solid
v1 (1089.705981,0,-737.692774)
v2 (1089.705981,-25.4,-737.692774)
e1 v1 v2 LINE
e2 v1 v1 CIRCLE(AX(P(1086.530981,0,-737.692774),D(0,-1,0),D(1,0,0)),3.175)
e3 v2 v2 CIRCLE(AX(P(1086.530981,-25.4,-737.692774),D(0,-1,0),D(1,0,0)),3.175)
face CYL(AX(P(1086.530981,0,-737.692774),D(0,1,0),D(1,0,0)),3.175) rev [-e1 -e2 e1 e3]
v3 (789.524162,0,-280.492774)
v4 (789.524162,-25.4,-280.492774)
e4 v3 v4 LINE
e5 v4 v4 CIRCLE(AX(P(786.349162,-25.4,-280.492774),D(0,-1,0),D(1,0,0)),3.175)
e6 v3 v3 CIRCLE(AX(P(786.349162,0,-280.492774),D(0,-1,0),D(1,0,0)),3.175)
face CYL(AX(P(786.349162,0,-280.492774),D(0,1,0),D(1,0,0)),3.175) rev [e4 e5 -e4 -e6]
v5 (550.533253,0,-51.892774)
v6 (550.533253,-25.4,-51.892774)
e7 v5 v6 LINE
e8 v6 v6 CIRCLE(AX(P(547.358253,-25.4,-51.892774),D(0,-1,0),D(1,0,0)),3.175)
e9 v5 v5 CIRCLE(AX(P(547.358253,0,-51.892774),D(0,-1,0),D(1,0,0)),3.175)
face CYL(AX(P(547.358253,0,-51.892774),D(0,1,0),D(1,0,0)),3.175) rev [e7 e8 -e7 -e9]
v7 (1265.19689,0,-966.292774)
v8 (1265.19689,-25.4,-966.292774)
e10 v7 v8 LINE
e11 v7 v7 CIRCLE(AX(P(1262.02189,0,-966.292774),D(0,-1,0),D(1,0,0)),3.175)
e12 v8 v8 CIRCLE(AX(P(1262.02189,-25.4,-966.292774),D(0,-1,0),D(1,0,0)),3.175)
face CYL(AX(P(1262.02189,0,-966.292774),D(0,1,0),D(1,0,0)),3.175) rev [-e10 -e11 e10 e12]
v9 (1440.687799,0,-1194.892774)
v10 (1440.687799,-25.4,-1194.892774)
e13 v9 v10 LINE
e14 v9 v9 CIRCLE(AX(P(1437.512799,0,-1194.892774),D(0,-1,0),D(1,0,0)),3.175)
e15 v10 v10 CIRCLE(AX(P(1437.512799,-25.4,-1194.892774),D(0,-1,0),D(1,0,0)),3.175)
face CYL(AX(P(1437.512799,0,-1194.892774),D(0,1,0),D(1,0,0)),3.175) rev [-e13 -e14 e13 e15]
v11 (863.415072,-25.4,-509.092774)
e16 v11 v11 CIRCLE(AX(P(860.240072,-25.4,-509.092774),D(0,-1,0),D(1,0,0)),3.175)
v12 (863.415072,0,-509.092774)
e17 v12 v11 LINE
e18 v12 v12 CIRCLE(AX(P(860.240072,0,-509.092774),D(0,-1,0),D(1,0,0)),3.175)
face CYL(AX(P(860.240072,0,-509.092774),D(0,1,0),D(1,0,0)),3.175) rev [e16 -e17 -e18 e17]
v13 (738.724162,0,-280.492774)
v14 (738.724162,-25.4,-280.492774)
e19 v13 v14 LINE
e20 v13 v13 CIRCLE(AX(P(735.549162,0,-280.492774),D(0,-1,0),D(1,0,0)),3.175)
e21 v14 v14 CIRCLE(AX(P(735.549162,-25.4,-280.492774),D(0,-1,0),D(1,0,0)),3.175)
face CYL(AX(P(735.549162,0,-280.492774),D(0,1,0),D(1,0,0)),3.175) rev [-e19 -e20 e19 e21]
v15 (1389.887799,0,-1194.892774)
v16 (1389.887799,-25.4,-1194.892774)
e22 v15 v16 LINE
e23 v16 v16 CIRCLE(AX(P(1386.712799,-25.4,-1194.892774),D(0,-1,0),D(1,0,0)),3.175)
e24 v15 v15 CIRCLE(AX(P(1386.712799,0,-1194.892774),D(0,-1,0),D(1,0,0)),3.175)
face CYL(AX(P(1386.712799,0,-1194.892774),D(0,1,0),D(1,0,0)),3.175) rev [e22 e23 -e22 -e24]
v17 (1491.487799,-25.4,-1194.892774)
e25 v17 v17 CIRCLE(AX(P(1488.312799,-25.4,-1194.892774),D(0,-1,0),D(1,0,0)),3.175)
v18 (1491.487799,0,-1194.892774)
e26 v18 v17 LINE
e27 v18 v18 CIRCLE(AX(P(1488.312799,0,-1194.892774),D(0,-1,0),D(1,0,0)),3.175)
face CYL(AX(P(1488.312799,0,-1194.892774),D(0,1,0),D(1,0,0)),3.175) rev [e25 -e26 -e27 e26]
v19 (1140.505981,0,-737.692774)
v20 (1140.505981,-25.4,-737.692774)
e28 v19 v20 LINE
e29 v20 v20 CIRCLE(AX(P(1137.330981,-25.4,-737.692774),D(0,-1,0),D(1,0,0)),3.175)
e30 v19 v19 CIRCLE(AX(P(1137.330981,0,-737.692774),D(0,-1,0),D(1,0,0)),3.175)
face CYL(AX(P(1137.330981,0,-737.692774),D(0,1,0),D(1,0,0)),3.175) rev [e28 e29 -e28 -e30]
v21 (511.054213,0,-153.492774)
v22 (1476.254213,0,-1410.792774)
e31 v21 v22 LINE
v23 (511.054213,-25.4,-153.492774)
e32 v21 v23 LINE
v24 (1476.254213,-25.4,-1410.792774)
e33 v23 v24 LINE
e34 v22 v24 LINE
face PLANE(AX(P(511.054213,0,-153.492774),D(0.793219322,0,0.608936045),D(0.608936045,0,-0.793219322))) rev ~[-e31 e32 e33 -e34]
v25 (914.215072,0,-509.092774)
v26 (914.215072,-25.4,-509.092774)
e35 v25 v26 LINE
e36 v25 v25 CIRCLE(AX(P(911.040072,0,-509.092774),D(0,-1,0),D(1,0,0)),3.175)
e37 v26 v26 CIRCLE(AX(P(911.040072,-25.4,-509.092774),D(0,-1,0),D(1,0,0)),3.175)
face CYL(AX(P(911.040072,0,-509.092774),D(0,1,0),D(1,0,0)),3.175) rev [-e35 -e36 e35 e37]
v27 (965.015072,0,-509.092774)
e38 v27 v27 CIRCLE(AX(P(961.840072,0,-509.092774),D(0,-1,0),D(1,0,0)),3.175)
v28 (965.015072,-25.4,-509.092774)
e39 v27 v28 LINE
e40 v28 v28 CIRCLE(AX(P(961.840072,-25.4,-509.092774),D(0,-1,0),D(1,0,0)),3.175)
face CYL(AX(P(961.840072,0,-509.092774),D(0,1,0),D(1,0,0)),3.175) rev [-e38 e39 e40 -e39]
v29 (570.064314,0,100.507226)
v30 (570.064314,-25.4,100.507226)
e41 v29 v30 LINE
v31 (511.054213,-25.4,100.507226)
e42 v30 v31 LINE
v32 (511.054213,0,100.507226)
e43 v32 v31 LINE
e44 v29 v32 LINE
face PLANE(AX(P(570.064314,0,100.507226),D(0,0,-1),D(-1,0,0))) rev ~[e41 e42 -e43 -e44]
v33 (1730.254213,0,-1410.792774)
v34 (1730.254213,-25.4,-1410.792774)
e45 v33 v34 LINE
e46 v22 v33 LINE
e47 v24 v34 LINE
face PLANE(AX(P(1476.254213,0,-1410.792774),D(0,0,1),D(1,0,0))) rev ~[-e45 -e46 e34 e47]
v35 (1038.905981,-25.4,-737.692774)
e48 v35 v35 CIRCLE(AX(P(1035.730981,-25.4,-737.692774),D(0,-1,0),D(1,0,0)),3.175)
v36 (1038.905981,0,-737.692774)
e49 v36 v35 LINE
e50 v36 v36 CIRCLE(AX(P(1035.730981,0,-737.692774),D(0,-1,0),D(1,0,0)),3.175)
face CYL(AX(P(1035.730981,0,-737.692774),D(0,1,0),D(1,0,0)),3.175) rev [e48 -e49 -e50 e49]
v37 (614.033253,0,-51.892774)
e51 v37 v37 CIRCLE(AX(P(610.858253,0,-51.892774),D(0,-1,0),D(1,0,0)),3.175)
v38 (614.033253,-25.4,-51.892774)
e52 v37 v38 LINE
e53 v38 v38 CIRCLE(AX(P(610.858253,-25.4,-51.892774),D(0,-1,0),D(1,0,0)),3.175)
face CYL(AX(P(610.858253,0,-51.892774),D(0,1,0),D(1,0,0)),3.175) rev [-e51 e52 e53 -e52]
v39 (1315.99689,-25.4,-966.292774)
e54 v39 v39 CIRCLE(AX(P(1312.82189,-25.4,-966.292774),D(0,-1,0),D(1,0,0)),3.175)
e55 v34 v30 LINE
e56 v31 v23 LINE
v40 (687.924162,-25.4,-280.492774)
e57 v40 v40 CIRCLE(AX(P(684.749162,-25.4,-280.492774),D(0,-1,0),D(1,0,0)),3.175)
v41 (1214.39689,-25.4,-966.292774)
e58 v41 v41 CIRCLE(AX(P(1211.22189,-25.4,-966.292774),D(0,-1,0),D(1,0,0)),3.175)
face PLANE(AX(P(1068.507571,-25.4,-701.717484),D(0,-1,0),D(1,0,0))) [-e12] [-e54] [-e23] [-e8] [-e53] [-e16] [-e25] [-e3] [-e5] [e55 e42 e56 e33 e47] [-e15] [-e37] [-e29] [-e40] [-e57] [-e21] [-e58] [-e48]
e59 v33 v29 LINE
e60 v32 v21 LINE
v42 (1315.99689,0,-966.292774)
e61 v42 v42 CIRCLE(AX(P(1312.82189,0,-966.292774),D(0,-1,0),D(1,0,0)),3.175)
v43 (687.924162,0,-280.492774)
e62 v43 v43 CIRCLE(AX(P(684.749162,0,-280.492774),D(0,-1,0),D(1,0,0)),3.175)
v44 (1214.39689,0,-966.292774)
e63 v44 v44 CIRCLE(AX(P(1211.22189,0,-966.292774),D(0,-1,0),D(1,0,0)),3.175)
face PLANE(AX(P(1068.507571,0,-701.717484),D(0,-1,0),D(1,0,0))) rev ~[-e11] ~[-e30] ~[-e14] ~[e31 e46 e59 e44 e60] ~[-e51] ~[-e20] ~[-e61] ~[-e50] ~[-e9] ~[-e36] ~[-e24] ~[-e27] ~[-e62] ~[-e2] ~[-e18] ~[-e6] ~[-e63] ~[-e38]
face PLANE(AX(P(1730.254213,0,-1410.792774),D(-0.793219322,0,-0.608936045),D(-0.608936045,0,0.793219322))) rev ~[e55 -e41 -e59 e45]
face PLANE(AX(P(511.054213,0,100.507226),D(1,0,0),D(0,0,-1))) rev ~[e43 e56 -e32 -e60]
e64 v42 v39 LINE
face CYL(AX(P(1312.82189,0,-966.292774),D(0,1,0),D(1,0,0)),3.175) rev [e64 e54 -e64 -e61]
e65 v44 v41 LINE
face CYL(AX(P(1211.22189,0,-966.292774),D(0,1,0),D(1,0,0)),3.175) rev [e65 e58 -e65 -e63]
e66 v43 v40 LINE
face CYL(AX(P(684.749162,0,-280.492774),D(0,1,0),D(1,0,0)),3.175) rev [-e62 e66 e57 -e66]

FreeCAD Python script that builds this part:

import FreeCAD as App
import Part
import Sketcher
Q = App.Units.Quantity

doc = App.newDocument("Part")
body = doc.addObject("PartDesign::Body", "Body")

# Sketch on XZ plane
sketch1 = body.newObject("Sketcher::SketchObject", "Sketch")
sketch1.AttachmentSupport = (doc.getObject("XZ_Plane"), [""])
sketch1.MapMode = "FlatFace"
sketch1.addGeometry([
    Part.LineSegment(App.Vector(1476.3, -1410.8, 0), App.Vector(1730.3, -1410.8, 0)),  # 0
    Part.LineSegment(App.Vector(1730.3, -1410.8, 0), App.Vector(570.1, 100.5, 0)),  # 1
    Part.LineSegment(App.Vector(570.1, 100.5, 0), App.Vector(511.1, 100.5, 0)),  # 2
    Part.LineSegment(App.Vector(511.1, 100.5, 0), App.Vector(511.1, -153.5, 0)),  # 3
    Part.LineSegment(App.Vector(511.1, -153.5, 0), App.Vector(1476.3, -1410.8, 0)),  # 4
    Part.Circle(App.Vector(1211.2, -966.3, 0), App.Vector(0, 0, 1), 3.2),  # 5
    Part.Circle(App.Vector(1386.7, -1194.9, 0), App.Vector(0, 0, 1), 3.2),  # 6
    Part.Circle(App.Vector(1437.5, -1194.9, 0), App.Vector(0, 0, 1), 3.2),  # 7
    Part.Circle(App.Vector(1488.3, -1194.9, 0), App.Vector(0, 0, 1), 3.2),  # 8
    Part.Circle(App.Vector(1262, -966.3, 0), App.Vector(0, 0, 1), 3.2),  # 9
    Part.Circle(App.Vector(1312.8, -966.3, 0), App.Vector(0, 0, 1), 3.2),  # 10
    Part.Circle(App.Vector(1035.7, -737.7, 0), App.Vector(0, 0, 1), 3.2),  # 11
    Part.Circle(App.Vector(1086.5, -737.7, 0), App.Vector(0, 0, 1), 3.2),  # 12
    Part.Circle(App.Vector(1137.3, -737.7, 0), App.Vector(0, 0, 1), 3.2),  # 13
    Part.Circle(App.Vector(860.2, -509.1, 0), App.Vector(0, 0, 1), 3.2),  # 14
    Part.Circle(App.Vector(911, -509.1, 0), App.Vector(0, 0, 1), 3.2),  # 15
    Part.Circle(App.Vector(961.8, -509.1, 0), App.Vector(0, 0, 1), 3.2),  # 16
    Part.Circle(App.Vector(684.7, -280.5, 0), App.Vector(0, 0, 1), 3.2),  # 17
    Part.Circle(App.Vector(735.5, -280.5, 0), App.Vector(0, 0, 1), 3.2),  # 18
    Part.Circle(App.Vector(547.4, -51.9, 0), App.Vector(0, 0, 1), 3.2),  # 19
    Part.Circle(App.Vector(610.9, -51.9, 0), App.Vector(0, 0, 1), 3.2),  # 20
    Part.Circle(App.Vector(786.3, -280.5, 0), App.Vector(0, 0, 1), 3.2),  # 21
], False)
sketch1.addConstraint([
    Sketcher.Constraint("Coincident", 0, 2, 1, 1),
    Sketcher.Constraint("Coincident", 1, 2, 2, 1),
    Sketcher.Constraint("Coincident", 2, 2, 3, 1),
    Sketcher.Constraint("Coincident", 3, 2, 4, 1),
    Sketcher.Constraint("Coincident", 4, 2, 0, 1),
    Sketcher.Constraint("Horizontal", 0),
    Sketcher.Constraint("Horizontal", 2),
    Sketcher.Constraint("Vertical", 3),
    Sketcher.Constraint("Equal", 5, 6),
    Sketcher.Constraint("Equal", 6, 7),
    Sketcher.Constraint("Equal", 7, 8),
    Sketcher.Constraint("Equal", 8, 9),
    Sketcher.Constraint("Equal", 9, 10),
    Sketcher.Constraint("Equal", 10, 11),
    Sketcher.Constraint("Equal", 11, 12),
    Sketcher.Constraint("Equal", 12, 13),
    Sketcher.Constraint("Equal", 13, 14),
    Sketcher.Constraint("Equal", 14, 15),
    Sketcher.Constraint("Equal", 15, 16),
    Sketcher.Constraint("Equal", 16, 17),
    Sketcher.Constraint("Equal", 17, 18),
    Sketcher.Constraint("Equal", 18, 19),
    Sketcher.Constraint("Equal", 19, 20),
    Sketcher.Constraint("Equal", 20, 21),
    Sketcher.Constraint("Parallel", 1, 4),
    Sketcher.Constraint("Horizontal", 6, 3, 7, 3),
    Sketcher.Constraint("Horizontal", 7, 3, 8, 3),
    Sketcher.Constraint("Horizontal", 5, 3, 9, 3),
    Sketcher.Constraint("Horizontal", 9, 3, 10, 3),
    Sketcher.Constraint("Horizontal", 11, 3, 12, 3),
    Sketcher.Constraint("Horizontal", 12, 3, 13, 3),
    Sketcher.Constraint("Horizontal", 14, 3, 15, 3),
    Sketcher.Constraint("Horizontal", 15, 3, 16, 3),
    Sketcher.Constraint("Horizontal", 17, 3, 18, 3),
    Sketcher.Constraint("Horizontal", 19, 3, 20, 3),
    Sketcher.Constraint("Horizontal", 18, 3, 21, 3),
    Sketcher.Constraint("Equal", 0, 3),
    Sketcher.Constraint("Diameter", 5, Q("0.25 in")),
    Sketcher.Constraint("DistanceX", 0, 1, 0, 2, Q("10 in")),
    Sketcher.Constraint("DistanceY", 6, 3, 5, 3, Q("9 in")),
    Sketcher.Constraint("DistanceX", 6, 3, 7, 3, Q("2 in")),
    Sketcher.Constraint("DistanceX", 7, 3, 8, 3, Q("2 in")),
    Sketcher.Constraint("DistanceX", 5, 3, 9, 3, Q("2 in")),
    Sketcher.Constraint("DistanceX", 9, 3, 10, 3, Q("2 in")),
    Sketcher.Constraint("DistanceY", 5, 3, 11, 3, Q("9 in")),
    Sketcher.Constraint("DistanceX", 11, 3, 12, 3, Q("2 in")),
    Sketcher.Constraint("DistanceX", 12, 3, 13, 3, Q("2 in")),
    Sketcher.Constraint("DistanceY", 11, 3, 14, 3, Q("9 in")),
    Sketcher.Constraint("DistanceX", 14, 3, 15, 3, Q("2 in")),
    Sketcher.Constraint("DistanceX", 15, 3, 16, 3, Q("2 in")),
    Sketcher.Constraint("DistanceY", 14, 3, 17, 3, Q("9 in")),
    Sketcher.Constraint("DistanceX", 17, 3, 18, 3, Q("2 in")),
    Sketcher.Constraint("DistanceY", 17, 3, 19, 3, Q("9 in")),
    Sketcher.Constraint("DistanceX", 18, 3, 21, 3, Q("2 in")),
    Sketcher.Constraint("DistanceY", 19, 3, 1, 2, Q("6 in")),
    Sketcher.Constraint("DistanceX", 19, 3, 20, 3, Q("2.5 in")),
    Sketcher.Constraint("DistanceY", 0, 2, 8, 3, Q("8.5 in")),
    Sketcher.Constraint("DistanceX", 2, 2, 2, 1, Q("59.010101 mm")),
    Sketcher.Constraint("DistanceX", -1, 1, 6, 3, Q("1386.712799 mm")),
    Sketcher.Constraint("DistanceX", -1, 1, 5, 3, Q("1211.22189 mm")),
    Sketcher.Constraint("DistanceX", -1, 1, 11, 3, Q("1035.730981 mm")),
    Sketcher.Constraint("DistanceX", -1, 1, 15, 3, Q("911.040072 mm")),
    Sketcher.Constraint("DistanceX", -1, 1, 17, 3, Q("684.749162 mm")),
    Sketcher.Constraint("DistanceX", 19, 3, 17, 3, Q("137.390909 mm")),
    Sketcher.Constraint("DistanceX", 19, 3, 1, 2, Q("22.706061 mm")),
    Sketcher.Constraint("DistanceY", 5, 3, -1, 1, Q("966.292774 mm")),
])
pad1 = body.newObject("PartDesign::Pad", "Pad")
pad1.Profile = sketch1
pad1.Length = Q("1 in")

doc.recompute()
